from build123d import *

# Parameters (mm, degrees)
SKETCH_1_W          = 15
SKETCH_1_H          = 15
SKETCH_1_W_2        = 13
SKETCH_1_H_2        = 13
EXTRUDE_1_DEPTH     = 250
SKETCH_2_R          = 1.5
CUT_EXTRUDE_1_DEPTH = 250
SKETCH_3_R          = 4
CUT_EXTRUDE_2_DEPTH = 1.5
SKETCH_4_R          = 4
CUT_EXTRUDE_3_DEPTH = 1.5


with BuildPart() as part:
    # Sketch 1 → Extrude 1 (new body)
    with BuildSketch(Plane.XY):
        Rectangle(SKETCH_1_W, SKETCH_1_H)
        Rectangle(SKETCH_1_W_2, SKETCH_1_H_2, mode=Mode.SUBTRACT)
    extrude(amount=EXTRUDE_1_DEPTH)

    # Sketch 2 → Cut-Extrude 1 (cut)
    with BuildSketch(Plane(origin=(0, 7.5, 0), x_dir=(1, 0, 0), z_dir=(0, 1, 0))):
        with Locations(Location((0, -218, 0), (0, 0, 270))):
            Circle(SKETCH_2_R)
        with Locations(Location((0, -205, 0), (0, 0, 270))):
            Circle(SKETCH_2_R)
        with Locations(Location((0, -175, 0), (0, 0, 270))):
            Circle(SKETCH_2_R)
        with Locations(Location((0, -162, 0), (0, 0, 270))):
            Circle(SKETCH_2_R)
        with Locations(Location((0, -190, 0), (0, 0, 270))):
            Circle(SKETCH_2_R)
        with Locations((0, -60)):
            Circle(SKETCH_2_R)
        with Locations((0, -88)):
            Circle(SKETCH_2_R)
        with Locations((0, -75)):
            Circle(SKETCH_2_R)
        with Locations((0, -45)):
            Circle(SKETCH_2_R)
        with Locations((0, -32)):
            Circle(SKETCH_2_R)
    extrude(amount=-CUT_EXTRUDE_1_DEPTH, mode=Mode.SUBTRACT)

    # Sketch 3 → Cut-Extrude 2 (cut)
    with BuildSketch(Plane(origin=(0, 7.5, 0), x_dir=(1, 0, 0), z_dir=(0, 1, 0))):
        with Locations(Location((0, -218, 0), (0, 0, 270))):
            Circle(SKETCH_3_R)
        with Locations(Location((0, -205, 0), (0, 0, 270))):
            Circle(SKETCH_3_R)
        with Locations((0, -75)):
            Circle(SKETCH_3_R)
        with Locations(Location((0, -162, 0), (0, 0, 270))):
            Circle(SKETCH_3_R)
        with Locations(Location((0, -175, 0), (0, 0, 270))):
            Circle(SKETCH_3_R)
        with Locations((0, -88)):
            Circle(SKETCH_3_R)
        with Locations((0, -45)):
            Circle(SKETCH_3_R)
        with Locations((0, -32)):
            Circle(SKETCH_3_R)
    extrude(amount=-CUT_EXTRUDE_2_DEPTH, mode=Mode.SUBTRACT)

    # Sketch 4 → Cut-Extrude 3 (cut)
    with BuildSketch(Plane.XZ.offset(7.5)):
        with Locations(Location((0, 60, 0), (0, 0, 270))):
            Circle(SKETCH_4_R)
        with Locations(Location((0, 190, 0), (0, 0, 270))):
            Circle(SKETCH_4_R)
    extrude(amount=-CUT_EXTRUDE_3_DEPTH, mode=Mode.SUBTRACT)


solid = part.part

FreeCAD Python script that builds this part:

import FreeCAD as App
import Part
import Sketcher
Q = App.Units.Quantity


def add_polygon(sketch, points):
    """Adds a closed chain of lines whose ends are joined by coincident constraints."""
    first, n = sketch.GeometryCount, len(points)
    for a, b in zip(points, points[1:] + points[:1]):
        sketch.addGeometry(Part.LineSegment(App.Vector(*a, 0), App.Vector(*b, 0)), False)
    for i in range(n):
        sketch.addConstraint(Sketcher.Constraint("Coincident", first + i, 2, first + (i + 1) % n, 1))

doc = App.newDocument("Part")
body = doc.addObject("PartDesign::Body", "Body")

# Sketch on XY plane
sketch1 = body.newObject("Sketcher::SketchObject", "Sketch")
sketch1.AttachmentSupport = (doc.getObject("XY_Plane"), [""])
sketch1.MapMode = "FlatFace"
add_polygon(sketch1, [(-8, 8), (-8, -8), (8, -8), (8, 8)])  # lines 0-3
add_polygon(sketch1, [(6, -6), (-6, -6), (-6, 6), (6, 6)])  # lines 4-7
sketch1.addConstraint([
    Sketcher.Constraint("Vertical", 0),
    Sketcher.Constraint("Horizontal", 1),
    Sketcher.Constraint("Vertical", 2),
    Sketcher.Constraint("Horizontal", 3),
    Sketcher.Constraint("Horizontal", 4),
    Sketcher.Constraint("Vertical", 5),
    Sketcher.Constraint("Horizontal", 6),
    Sketcher.Constraint("Vertical", 7),
    Sketcher.Constraint("Symmetric", 0, 2, 2, 2, -1, 1),
    Sketcher.Constraint("Symmetric", 4, 2, 6, 2, -1, 1),
    Sketcher.Constraint("Equal", 3, 0),
    Sketcher.Constraint("Equal", 6, 5),
    Sketcher.Constraint("DistanceX", 1, 1, 1, 2, Q("15 mm")),
    Sketcher.Constraint("DistanceX", 4, 2, 4, 1, Q("13 mm")),
])
pad1 = body.newObject("PartDesign::Pad", "Pad")
pad1.Profile = sketch1
pad1.Length = 250

# Sketch on XZ plane
sketch2 = body.newObject("Sketcher::SketchObject", "Sketch001")
sketch2.AttachmentSupport = (doc.getObject("XZ_Plane"), [""])
sketch2.MapMode = "FlatFace"
sketch2.AttachmentOffset = App.Placement(App.Vector(0, 0, -7.5), App.Rotation())
sketch2.addGeometry([
    Part.Circle(App.Vector(0, 218, 0), App.Vector(0, 0, 1), 1.5),  # 0
    Part.Circle(App.Vector(0, 205, 0), App.Vector(0, 0, 1), 1.5),  # 1
    Part.Circle(App.Vector(0, 175, 0), App.Vector(0, 0, 1), 1.5),  # 2
    Part.Circle(App.Vector(0, 162, 0), App.Vector(0, 0, 1), 1.5),  # 3
    Part.Circle(App.Vector(0, 190, 0), App.Vector(0, 0, 1), 1.5),  # 4
    Part.Circle(App.Vector(0, 60, 0), App.Vector(0, 0, 1), 1.5),  # 5
    Part.Circle(App.Vector(0, 88, 0), App.Vector(0, 0, 1), 1.5),  # 6
    Part.Circle(App.Vector(0, 75, 0), App.Vector(0, 0, 1), 1.5),  # 7
    Part.Circle(App.Vector(0, 45, 0), App.Vector(0, 0, 1), 1.5),  # 8
    Part.Circle(App.Vector(0, 32, 0), App.Vector(0, 0, 1), 1.5),  # 9
], False)
sketch2.addConstraint([
    Sketcher.Constraint("Equal", 0, 1),
    Sketcher.Constraint("Equal", 1, 2),
    Sketcher.Constraint("Equal", 2, 3),
    Sketcher.Constraint("Equal", 3, 4),
    Sketcher.Constraint("Equal", 4, 5),
    Sketcher.Constraint("Equal", 5, 6),
    Sketcher.Constraint("Equal", 6, 7),
    Sketcher.Constraint("Equal", 7, 8),
    Sketcher.Constraint("Equal", 8, 9),
    Sketcher.Constraint("PointOnObject", 0, 3, -2),
    Sketcher.Constraint("PointOnObject", 1, 3, -2),
    Sketcher.Constraint("PointOnObject", 2, 3, -2),
    Sketcher.Constraint("PointOnObject", 3, 3, -2),
    Sketcher.Constraint("PointOnObject", 4, 3, -2),
    Sketcher.Constraint("PointOnObject", 5, 3, -2),
    Sketcher.Constraint("PointOnObject", 6, 3, -2),
    Sketcher.Constraint("PointOnObject", 7, 3, -2),
    Sketcher.Constraint("PointOnObject", 8, 3, -2),
    Sketcher.Constraint("PointOnObject", 9, 3, -2),
    Sketcher.Constraint("Diameter", 0, Q("3 mm")),
    Sketcher.Constraint("DistanceY", -1, 1, 0, 3, Q("218 mm")),
    Sketcher.Constraint("DistanceY", -1, 1, 1, 3, Q("205 mm")),
    Sketcher.Constraint("DistanceY", -1, 1, 2, 3, Q("175 mm")),
    Sketcher.Constraint("DistanceY", -1, 1, 3, 3, Q("162 mm")),
    Sketcher.Constraint("DistanceY", -1, 1, 4, 3, Q("190 mm")),
    Sketcher.Constraint("DistanceY", -1, 1, 5, 3, Q("60 mm")),
    Sketcher.Constraint("DistanceY", -1, 1, 6, 3, Q("88 mm")),
    Sketcher.Constraint("DistanceY", -1, 1, 7, 3, Q("75 mm")),
    Sketcher.Constraint("DistanceY", -1, 1, 8, 3, Q("45 mm")),
    Sketcher.Constraint("DistanceY", -1, 1, 9, 3, Q("32 mm")),
])
pocket1 = body.newObject("PartDesign::Pocket", "Pocket")
pocket1.Profile = sketch2
pocket1.Length = 250
pocket1.Reversed = True

# Sketch on XZ plane
sketch3 = body.newObject("Sketcher::SketchObject", "Sketch002")
sketch3.AttachmentSupport = (doc.getObject("XZ_Plane"), [""])
sketch3.MapMode = "FlatFace"
sketch3.AttachmentOffset = App.Placement(App.Vector(0, 0, -7.5), App.Rotation())
sketch3.addGeometry([
    Part.Circle(App.Vector(0, 218, 0), App.Vector(0, 0, 1), 4),  # 0
    Part.Circle(App.Vector(0, 205, 0), App.Vector(0, 0, 1), 4),  # 1
    Part.Circle(App.Vector(0, 75, 0), App.Vector(0, 0, 1), 4),  # 2
    Part.Circle(App.Vector(0, 162, 0), App.Vector(0, 0, 1), 4),  # 3
    Part.Circle(App.Vector(0, 175, 0), App.Vector(0, 0, 1), 4),  # 4
    Part.Circle(App.Vector(0, 88, 0), App.Vector(0, 0, 1), 4),  # 5
    Part.Circle(App.Vector(0, 45, 0), App.Vector(0, 0, 1), 4),  # 6
    Part.Circle(App.Vector(0, 32, 0), App.Vector(0, 0, 1), 4),  # 7
], False)
sketch3.addConstraint([
    Sketcher.Constraint("Equal", 0, 1),
    Sketcher.Constraint("Equal", 1, 2),
    Sketcher.Constraint("Equal", 2, 3),
    Sketcher.Constraint("Equal", 3, 4),
    Sketcher.Constraint("Equal", 4, 5),
    Sketcher.Constraint("Equal", 5, 6),
    Sketcher.Constraint("Equal", 6, 7),
    Sketcher.Constraint("PointOnObject", 0, 3, -2),
    Sketcher.Constraint("PointOnObject", 1, 3, -2),
    Sketcher.Constraint("PointOnObject", 2, 3, -2),
    Sketcher.Constraint("PointOnObject", 3, 3, -2),
    Sketcher.Constraint("PointOnObject", 4, 3, -2),
    Sketcher.Constraint("PointOnObject", 5, 3, -2),
    Sketcher.Constraint("PointOnObject", 6, 3, -2),
    Sketcher.Constraint("PointOnObject", 7, 3, -2),
    Sketcher.Constraint("Diameter", 0, Q("8 mm")),
    Sketcher.Constraint("DistanceY", -1, 1, 0, 3, Q("218 mm")),
    Sketcher.Constraint("DistanceY", -1, 1, 1, 3, Q("205 mm")),
    Sketcher.Constraint("DistanceY", -1, 1, 2, 3, Q("75 mm")),
    Sketcher.Constraint("DistanceY", -1, 1, 3, 3, Q("162 mm")),
    Sketcher.Constraint("DistanceY", -1, 1, 4, 3, Q("175 mm")),
    Sketcher.Constraint("DistanceY", -1, 1, 5, 3, Q("88 mm")),
    Sketcher.Constraint("DistanceY", -1, 1, 6, 3, Q("45 mm")),
    Sketcher.Constraint("DistanceY", -1, 1, 7, 3, Q("32 mm")),
])
pocket2 = body.newObject("PartDesign::Pocket", "Pocket001")
pocket2.Profile = sketch3
pocket2.Length = 1.5
pocket2.Reversed = True

# Sketch on XZ plane
sketch4 = body.newObject("Sketcher::SketchObject", "Sketch003")
sketch4.AttachmentSupport = (doc.getObject("XZ_Plane"), [""])
sketch4.MapMode = "FlatFace"
sketch4.AttachmentOffset = App.Placement(App.Vector(0, 0, 7.5), App.Rotation())
sketch4.addGeometry([
    Part.Circle(App.Vector(0, 60, 0), App.Vector(0, 0, 1), 4),
    Part.Circle(App.Vector(0, 190, 0), App.Vector(0, 0, 1), 4),
], False)
sketch4.addConstraint([
    Sketcher.Constraint("Equal", 0, 1),
    Sketcher.Constraint("PointOnObject", 0, 3, -2),
    Sketcher.Constraint("PointOnObject", 1, 3, -2),
    Sketcher.Constraint("Diameter", 0, Q("8 mm")),
    Sketcher.Constraint("DistanceY", -1, 1, 0, 3, Q("60 mm")),
    Sketcher.Constraint("DistanceY", -1, 1, 1, 3, Q("190 mm")),
])
pocket3 = body.newObject("PartDesign::Pocket", "Pocket002")
pocket3.Profile = sketch4
pocket3.Length = 1.5

doc.recompute()
